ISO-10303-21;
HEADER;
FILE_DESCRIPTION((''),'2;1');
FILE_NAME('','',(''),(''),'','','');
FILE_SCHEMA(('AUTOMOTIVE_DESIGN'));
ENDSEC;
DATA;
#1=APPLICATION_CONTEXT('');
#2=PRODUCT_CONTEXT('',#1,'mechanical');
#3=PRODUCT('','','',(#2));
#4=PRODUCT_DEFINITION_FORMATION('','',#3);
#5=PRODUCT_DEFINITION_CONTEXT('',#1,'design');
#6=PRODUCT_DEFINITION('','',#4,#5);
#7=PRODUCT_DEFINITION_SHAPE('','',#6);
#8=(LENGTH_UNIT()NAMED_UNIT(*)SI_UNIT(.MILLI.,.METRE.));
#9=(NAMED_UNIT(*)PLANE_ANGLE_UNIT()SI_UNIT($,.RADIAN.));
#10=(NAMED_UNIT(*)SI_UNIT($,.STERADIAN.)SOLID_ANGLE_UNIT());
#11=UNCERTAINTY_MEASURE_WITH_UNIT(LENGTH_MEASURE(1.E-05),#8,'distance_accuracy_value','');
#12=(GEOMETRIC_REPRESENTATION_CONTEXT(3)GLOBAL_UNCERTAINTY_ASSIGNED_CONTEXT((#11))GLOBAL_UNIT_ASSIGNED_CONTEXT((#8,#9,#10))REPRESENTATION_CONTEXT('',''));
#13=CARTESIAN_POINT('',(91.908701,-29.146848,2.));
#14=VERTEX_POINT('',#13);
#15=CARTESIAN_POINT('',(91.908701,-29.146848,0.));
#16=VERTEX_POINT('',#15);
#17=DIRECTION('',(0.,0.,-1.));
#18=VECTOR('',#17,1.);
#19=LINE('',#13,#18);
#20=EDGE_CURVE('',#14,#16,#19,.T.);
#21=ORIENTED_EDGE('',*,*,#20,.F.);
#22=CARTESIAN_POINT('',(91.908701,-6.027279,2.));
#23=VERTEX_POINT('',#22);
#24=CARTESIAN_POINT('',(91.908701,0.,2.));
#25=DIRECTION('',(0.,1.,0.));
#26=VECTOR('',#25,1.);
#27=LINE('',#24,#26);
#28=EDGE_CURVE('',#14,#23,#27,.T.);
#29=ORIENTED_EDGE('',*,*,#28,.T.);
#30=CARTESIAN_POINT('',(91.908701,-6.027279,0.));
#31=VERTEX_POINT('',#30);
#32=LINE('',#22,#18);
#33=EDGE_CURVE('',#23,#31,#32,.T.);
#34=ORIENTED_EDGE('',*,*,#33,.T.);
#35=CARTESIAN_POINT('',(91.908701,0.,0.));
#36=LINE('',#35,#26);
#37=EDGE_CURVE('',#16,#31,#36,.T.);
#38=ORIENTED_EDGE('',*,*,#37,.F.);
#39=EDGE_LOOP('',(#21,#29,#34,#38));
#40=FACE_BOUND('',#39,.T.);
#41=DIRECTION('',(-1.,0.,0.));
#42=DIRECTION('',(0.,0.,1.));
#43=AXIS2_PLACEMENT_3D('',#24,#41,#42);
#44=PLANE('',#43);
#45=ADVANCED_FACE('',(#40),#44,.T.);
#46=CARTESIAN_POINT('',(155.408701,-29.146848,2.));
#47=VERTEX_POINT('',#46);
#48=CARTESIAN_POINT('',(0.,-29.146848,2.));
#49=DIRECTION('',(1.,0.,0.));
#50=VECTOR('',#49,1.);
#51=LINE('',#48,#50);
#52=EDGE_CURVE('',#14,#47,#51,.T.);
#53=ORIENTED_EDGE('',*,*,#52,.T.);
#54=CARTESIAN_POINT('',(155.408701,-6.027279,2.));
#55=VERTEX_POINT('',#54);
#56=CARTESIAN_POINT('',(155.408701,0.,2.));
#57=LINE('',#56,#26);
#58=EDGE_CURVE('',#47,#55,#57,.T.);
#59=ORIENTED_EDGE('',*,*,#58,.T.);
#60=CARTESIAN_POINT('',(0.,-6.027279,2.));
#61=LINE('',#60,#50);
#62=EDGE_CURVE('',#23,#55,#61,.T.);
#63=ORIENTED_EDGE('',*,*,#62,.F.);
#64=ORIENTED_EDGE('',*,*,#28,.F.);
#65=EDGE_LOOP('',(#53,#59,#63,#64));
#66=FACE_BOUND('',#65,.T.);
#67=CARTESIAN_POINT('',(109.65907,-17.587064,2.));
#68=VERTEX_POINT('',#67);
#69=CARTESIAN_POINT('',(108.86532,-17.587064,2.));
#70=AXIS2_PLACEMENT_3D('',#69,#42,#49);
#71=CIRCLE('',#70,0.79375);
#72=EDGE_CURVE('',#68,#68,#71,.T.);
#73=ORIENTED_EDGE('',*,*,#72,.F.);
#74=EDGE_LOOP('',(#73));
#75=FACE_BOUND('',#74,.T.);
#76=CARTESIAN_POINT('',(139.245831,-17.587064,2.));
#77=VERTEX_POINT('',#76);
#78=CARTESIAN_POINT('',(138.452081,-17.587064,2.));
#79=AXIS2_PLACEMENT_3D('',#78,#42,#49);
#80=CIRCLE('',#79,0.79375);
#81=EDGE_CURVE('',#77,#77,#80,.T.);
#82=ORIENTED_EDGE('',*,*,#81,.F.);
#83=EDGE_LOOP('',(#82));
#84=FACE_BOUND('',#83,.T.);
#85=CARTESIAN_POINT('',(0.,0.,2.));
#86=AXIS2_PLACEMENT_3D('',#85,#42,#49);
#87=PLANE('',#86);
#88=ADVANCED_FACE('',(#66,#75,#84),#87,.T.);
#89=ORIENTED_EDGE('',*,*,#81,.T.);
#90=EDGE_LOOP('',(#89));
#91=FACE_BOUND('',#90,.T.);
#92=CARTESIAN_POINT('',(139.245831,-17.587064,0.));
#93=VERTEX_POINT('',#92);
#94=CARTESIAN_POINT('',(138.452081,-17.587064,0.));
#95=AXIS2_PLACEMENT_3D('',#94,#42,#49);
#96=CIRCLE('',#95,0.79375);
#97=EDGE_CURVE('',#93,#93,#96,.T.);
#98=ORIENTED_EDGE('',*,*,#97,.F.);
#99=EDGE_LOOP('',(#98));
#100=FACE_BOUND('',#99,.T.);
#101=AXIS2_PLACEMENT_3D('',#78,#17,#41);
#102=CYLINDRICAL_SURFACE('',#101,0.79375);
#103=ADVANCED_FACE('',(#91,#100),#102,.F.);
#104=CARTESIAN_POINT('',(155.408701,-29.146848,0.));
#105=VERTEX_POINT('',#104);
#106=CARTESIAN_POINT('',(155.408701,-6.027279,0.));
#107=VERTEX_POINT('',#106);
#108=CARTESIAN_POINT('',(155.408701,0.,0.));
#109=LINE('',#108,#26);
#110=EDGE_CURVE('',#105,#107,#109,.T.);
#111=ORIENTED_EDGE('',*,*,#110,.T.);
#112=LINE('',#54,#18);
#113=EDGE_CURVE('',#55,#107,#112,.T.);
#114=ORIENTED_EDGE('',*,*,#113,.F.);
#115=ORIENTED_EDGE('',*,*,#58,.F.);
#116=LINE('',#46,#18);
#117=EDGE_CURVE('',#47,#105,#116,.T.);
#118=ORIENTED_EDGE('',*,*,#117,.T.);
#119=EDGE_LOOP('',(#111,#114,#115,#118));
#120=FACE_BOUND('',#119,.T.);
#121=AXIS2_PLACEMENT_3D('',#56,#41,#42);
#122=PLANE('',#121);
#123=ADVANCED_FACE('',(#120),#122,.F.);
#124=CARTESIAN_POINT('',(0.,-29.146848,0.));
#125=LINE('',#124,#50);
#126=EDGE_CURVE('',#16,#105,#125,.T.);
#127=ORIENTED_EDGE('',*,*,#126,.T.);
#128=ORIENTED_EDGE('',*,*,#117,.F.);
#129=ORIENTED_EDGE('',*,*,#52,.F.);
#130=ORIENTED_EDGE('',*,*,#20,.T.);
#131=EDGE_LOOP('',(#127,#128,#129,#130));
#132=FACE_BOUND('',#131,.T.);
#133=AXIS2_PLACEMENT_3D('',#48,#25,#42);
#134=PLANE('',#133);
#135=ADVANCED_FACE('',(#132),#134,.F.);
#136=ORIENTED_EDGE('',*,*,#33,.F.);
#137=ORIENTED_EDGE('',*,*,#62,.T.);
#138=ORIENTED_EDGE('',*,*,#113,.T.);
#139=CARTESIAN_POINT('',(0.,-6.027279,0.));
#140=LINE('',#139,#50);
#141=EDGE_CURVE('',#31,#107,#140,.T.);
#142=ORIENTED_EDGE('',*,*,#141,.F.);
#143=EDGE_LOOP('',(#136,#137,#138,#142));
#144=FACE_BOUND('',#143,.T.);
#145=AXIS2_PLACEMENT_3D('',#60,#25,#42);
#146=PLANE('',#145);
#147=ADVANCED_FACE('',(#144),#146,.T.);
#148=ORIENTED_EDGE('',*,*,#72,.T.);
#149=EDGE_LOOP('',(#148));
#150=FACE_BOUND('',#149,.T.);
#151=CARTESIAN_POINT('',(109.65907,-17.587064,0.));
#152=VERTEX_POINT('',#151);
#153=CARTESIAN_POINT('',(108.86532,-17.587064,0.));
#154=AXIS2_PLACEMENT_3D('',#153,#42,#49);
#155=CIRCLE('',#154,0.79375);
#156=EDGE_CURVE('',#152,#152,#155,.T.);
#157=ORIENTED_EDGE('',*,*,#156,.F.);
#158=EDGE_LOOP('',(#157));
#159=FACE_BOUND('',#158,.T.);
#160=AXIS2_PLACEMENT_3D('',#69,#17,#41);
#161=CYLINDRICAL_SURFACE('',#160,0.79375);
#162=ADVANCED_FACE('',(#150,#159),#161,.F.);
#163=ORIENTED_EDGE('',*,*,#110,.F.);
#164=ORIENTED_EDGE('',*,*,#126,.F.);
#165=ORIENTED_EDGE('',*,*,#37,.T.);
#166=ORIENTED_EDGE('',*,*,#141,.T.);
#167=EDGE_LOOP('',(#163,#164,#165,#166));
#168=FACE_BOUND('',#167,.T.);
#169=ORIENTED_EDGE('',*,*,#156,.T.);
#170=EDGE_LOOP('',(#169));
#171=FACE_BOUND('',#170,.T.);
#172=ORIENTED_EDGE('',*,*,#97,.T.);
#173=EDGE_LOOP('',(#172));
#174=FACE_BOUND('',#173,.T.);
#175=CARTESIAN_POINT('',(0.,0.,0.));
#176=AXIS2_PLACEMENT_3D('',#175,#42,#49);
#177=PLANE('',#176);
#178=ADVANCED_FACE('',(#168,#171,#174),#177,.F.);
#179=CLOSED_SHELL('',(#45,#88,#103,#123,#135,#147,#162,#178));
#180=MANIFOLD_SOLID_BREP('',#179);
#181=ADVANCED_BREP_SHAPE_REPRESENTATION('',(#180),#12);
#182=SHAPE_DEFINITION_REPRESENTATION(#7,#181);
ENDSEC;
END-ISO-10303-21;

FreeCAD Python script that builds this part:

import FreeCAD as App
import Part
import Sketcher
from FreeCAD import Vector
Q = App.Units.Quantity


def add_polygon(sketch, points):
    """Adds a closed chain of lines whose ends are joined by coincident constraints."""
    first, n = sketch.GeometryCount, len(points)
    for a, b in zip(points, points[1:] + points[:1]):
        sketch.addGeometry(Part.LineSegment(App.Vector(*a, 0), App.Vector(*b, 0)), False)
    for i in range(n):
        sketch.addConstraint(Sketcher.Constraint("Coincident", first + i, 2, first + (i + 1) % n, 1))

doc = App.newDocument("Part")
body = doc.addObject("PartDesign::Body", "Body")

sketch1 = doc.addObject("Sketcher::SketchObject", "Sketch")
body.addObject(sketch1)
sketch1.AttachmentSupport = (doc.XY_Plane, [""])
sketch1.MapMode = "FlatFace"
add_polygon(sketch1, [(155.4, -6), (91.9, -6), (91.9, -29.1), (155.4, -29.1)])
sketch1.addGeometry(Part.Circle(Vector(108.9, -17.6, 0), Vector(0, 0, 1), 0.8), False)
sketch1.addGeometry(Part.Circle(Vector(138.5, -17.6, 0), Vector(0, 0, 1), 0.8), False)
sketch1.addConstraint(Sketcher.Constraint("Horizontal", 0))
sketch1.addConstraint(Sketcher.Constraint("Vertical", 1))
sketch1.addConstraint(Sketcher.Constraint("Horizontal", 2))
sketch1.addConstraint(Sketcher.Constraint("Vertical", 3))
sketch1.addConstraint(Sketcher.Constraint("Equal", 4, 5))
sketch1.addConstraint(Sketcher.Constraint("Horizontal", 4, 3, 5, 3))
sketch1.addConstraint(Sketcher.Constraint("Diameter", 4, Q("0.0625 in")))
sketch1.addConstraint(Sketcher.Constraint("DistanceX", 0, 2, 0, 1, Q("2.5 in")))
sketch1.addConstraint(Sketcher.Constraint("DistanceY", 1, 2, 1, 1, 23.119569))
sketch1.addConstraint(Sketcher.Constraint("DistanceX", -1, 1, 0, 2, 91.9087))
sketch1.addConstraint(Sketcher.Constraint("DistanceX", -1, 1, 4, 3, 108.86532))
sketch1.addConstraint(Sketcher.Constraint("DistanceX", -1, 1, 5, 3, 138.452081))
sketch1.addConstraint(Sketcher.Constraint("DistanceY", 0, 2, -1, 1, 6.027279))
sketch1.addConstraint(Sketcher.Constraint("DistanceY", 4, 3, -1, 1, 17.587064))
pad1 = doc.addObject("PartDesign::Pad", "Pad")
body.addObject(pad1)
pad1.Profile = sketch1
pad1.Length = 2

doc.recompute()
